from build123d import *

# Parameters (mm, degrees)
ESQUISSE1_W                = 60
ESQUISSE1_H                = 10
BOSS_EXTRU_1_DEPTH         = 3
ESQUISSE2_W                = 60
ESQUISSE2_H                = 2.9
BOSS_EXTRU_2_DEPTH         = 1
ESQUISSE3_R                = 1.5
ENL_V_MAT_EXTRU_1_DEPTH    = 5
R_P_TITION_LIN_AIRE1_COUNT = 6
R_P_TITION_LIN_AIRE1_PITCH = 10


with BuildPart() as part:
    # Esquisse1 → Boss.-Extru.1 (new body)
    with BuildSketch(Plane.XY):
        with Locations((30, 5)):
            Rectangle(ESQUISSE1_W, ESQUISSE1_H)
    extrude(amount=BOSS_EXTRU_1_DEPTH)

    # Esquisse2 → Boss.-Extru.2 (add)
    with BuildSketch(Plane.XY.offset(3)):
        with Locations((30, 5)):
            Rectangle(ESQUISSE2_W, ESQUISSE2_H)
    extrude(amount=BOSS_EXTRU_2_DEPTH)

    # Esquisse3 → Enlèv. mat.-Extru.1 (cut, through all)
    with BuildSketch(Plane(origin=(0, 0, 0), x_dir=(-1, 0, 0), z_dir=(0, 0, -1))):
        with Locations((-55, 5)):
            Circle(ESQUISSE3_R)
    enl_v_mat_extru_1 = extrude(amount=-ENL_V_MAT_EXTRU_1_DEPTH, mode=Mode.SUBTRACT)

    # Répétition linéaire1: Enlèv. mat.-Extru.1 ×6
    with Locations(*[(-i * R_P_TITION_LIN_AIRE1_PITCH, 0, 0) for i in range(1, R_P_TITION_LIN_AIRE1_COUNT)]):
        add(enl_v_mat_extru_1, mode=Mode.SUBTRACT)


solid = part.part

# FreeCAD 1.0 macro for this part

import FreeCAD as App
import Part
import Sketcher
from FreeCAD import Vector


def add_polygon(sketch, points):
    """Adds a closed chain of lines whose ends are joined by coincident constraints."""
    first, n = sketch.GeometryCount, len(points)
    for a, b in zip(points, points[1:] + points[:1]):
        sketch.addGeometry(Part.LineSegment(App.Vector(*a, 0), App.Vector(*b, 0)), False)
    for i in range(n):
        sketch.addConstraint(Sketcher.Constraint("Coincident", first + i, 2, first + (i + 1) % n, 1))

doc = App.newDocument("Part")
body = doc.addObject("PartDesign::Body", "Body")

# Sketch on XY plane
sketch1 = body.newObject("Sketcher::SketchObject", "Sketch")
sketch1.AttachmentSupport = (doc.getObject("XY_Plane"), [""])
sketch1.MapMode = "FlatFace"
add_polygon(sketch1, [(0, 10), (0, 0), (60, 0), (60, 10)])  # lines 0-3
sketch1.addConstraint([
    Sketcher.Constraint("Vertical", 0),
    Sketcher.Constraint("Horizontal", 1),
    Sketcher.Constraint("Vertical", 2),
    Sketcher.Constraint("Horizontal", 3),
    Sketcher.Constraint("Coincident", 0, 2, -1, 1),
    Sketcher.Constraint("DistanceX", 1, 1, 1, 2, 60.0),
    Sketcher.Constraint("DistanceY", 0, 2, 0, 1, 10.0),
])
pad1 = body.newObject("PartDesign::Pad", "Pad")
pad1.Profile = sketch1
pad1.Length = 3

# Sketch on XY plane
sketch2 = body.newObject("Sketcher::SketchObject", "Sketch001")
sketch2.AttachmentSupport = (doc.getObject("XY_Plane"), [""])
sketch2.MapMode = "FlatFace"
sketch2.AttachmentOffset = App.Placement(Vector(0, 0, 3), App.Rotation())
add_polygon(sketch2, [(0, 6.5), (0, 3.5), (60, 3.5), (60, 6.5)])  # lines 0-3
sketch2.addConstraint([
    Sketcher.Constraint("Vertical", 0),
    Sketcher.Constraint("Horizontal", 1),
    Sketcher.Constraint("Vertical", 2),
    Sketcher.Constraint("Horizontal", 3),
    Sketcher.Constraint("PointOnObject", 0, 2, -2),
    Sketcher.Constraint("DistanceX", 1, 1, 1, 2, 60.0),
    Sketcher.Constraint("DistanceY", 0, 2, 0, 1, 2.9),
    Sketcher.Constraint("DistanceY", -1, 1, 0, 2, 3.55),
])
pad2 = body.newObject("PartDesign::Pad", "Pad001")
pad2.Profile = sketch2
pad2.Length = 1

# Sketch on XY plane
sketch3 = body.newObject("Sketcher::SketchObject", "Sketch002")
sketch3.AttachmentSupport = (doc.getObject("XY_Plane"), [""])
sketch3.MapMode = "FlatFace"
sketch3.addGeometry(Part.Circle(Vector(55, 5, 0), Vector(0, 0, 1), 1.5), False)
sketch3.addConstraint([
    Sketcher.Constraint("Diameter", 0, 3.0),
    Sketcher.Constraint("DistanceX", -1, 1, 0, 3, 55.0),
    Sketcher.Constraint("DistanceY", -1, 1, 0, 3, 5.0),
])
pocket1 = body.newObject("PartDesign::Pocket", "Pocket")
pocket1.Profile = sketch3
pocket1.Type = "ThroughAll"
pocket1.Reversed = True
doc.recompute()

linearpattern = body.newObject("PartDesign::LinearPattern", "LinearPattern")
linearpattern.Originals = [pocket1]
linearpattern.Direction = (doc.getObject("X_Axis"), [""])
linearpattern.Mode = "offset"
linearpattern.Offset = 10
linearpattern.Occurrences = 6
linearpattern.Reversed = True
body.Tip = linearpattern

doc.recompute()
